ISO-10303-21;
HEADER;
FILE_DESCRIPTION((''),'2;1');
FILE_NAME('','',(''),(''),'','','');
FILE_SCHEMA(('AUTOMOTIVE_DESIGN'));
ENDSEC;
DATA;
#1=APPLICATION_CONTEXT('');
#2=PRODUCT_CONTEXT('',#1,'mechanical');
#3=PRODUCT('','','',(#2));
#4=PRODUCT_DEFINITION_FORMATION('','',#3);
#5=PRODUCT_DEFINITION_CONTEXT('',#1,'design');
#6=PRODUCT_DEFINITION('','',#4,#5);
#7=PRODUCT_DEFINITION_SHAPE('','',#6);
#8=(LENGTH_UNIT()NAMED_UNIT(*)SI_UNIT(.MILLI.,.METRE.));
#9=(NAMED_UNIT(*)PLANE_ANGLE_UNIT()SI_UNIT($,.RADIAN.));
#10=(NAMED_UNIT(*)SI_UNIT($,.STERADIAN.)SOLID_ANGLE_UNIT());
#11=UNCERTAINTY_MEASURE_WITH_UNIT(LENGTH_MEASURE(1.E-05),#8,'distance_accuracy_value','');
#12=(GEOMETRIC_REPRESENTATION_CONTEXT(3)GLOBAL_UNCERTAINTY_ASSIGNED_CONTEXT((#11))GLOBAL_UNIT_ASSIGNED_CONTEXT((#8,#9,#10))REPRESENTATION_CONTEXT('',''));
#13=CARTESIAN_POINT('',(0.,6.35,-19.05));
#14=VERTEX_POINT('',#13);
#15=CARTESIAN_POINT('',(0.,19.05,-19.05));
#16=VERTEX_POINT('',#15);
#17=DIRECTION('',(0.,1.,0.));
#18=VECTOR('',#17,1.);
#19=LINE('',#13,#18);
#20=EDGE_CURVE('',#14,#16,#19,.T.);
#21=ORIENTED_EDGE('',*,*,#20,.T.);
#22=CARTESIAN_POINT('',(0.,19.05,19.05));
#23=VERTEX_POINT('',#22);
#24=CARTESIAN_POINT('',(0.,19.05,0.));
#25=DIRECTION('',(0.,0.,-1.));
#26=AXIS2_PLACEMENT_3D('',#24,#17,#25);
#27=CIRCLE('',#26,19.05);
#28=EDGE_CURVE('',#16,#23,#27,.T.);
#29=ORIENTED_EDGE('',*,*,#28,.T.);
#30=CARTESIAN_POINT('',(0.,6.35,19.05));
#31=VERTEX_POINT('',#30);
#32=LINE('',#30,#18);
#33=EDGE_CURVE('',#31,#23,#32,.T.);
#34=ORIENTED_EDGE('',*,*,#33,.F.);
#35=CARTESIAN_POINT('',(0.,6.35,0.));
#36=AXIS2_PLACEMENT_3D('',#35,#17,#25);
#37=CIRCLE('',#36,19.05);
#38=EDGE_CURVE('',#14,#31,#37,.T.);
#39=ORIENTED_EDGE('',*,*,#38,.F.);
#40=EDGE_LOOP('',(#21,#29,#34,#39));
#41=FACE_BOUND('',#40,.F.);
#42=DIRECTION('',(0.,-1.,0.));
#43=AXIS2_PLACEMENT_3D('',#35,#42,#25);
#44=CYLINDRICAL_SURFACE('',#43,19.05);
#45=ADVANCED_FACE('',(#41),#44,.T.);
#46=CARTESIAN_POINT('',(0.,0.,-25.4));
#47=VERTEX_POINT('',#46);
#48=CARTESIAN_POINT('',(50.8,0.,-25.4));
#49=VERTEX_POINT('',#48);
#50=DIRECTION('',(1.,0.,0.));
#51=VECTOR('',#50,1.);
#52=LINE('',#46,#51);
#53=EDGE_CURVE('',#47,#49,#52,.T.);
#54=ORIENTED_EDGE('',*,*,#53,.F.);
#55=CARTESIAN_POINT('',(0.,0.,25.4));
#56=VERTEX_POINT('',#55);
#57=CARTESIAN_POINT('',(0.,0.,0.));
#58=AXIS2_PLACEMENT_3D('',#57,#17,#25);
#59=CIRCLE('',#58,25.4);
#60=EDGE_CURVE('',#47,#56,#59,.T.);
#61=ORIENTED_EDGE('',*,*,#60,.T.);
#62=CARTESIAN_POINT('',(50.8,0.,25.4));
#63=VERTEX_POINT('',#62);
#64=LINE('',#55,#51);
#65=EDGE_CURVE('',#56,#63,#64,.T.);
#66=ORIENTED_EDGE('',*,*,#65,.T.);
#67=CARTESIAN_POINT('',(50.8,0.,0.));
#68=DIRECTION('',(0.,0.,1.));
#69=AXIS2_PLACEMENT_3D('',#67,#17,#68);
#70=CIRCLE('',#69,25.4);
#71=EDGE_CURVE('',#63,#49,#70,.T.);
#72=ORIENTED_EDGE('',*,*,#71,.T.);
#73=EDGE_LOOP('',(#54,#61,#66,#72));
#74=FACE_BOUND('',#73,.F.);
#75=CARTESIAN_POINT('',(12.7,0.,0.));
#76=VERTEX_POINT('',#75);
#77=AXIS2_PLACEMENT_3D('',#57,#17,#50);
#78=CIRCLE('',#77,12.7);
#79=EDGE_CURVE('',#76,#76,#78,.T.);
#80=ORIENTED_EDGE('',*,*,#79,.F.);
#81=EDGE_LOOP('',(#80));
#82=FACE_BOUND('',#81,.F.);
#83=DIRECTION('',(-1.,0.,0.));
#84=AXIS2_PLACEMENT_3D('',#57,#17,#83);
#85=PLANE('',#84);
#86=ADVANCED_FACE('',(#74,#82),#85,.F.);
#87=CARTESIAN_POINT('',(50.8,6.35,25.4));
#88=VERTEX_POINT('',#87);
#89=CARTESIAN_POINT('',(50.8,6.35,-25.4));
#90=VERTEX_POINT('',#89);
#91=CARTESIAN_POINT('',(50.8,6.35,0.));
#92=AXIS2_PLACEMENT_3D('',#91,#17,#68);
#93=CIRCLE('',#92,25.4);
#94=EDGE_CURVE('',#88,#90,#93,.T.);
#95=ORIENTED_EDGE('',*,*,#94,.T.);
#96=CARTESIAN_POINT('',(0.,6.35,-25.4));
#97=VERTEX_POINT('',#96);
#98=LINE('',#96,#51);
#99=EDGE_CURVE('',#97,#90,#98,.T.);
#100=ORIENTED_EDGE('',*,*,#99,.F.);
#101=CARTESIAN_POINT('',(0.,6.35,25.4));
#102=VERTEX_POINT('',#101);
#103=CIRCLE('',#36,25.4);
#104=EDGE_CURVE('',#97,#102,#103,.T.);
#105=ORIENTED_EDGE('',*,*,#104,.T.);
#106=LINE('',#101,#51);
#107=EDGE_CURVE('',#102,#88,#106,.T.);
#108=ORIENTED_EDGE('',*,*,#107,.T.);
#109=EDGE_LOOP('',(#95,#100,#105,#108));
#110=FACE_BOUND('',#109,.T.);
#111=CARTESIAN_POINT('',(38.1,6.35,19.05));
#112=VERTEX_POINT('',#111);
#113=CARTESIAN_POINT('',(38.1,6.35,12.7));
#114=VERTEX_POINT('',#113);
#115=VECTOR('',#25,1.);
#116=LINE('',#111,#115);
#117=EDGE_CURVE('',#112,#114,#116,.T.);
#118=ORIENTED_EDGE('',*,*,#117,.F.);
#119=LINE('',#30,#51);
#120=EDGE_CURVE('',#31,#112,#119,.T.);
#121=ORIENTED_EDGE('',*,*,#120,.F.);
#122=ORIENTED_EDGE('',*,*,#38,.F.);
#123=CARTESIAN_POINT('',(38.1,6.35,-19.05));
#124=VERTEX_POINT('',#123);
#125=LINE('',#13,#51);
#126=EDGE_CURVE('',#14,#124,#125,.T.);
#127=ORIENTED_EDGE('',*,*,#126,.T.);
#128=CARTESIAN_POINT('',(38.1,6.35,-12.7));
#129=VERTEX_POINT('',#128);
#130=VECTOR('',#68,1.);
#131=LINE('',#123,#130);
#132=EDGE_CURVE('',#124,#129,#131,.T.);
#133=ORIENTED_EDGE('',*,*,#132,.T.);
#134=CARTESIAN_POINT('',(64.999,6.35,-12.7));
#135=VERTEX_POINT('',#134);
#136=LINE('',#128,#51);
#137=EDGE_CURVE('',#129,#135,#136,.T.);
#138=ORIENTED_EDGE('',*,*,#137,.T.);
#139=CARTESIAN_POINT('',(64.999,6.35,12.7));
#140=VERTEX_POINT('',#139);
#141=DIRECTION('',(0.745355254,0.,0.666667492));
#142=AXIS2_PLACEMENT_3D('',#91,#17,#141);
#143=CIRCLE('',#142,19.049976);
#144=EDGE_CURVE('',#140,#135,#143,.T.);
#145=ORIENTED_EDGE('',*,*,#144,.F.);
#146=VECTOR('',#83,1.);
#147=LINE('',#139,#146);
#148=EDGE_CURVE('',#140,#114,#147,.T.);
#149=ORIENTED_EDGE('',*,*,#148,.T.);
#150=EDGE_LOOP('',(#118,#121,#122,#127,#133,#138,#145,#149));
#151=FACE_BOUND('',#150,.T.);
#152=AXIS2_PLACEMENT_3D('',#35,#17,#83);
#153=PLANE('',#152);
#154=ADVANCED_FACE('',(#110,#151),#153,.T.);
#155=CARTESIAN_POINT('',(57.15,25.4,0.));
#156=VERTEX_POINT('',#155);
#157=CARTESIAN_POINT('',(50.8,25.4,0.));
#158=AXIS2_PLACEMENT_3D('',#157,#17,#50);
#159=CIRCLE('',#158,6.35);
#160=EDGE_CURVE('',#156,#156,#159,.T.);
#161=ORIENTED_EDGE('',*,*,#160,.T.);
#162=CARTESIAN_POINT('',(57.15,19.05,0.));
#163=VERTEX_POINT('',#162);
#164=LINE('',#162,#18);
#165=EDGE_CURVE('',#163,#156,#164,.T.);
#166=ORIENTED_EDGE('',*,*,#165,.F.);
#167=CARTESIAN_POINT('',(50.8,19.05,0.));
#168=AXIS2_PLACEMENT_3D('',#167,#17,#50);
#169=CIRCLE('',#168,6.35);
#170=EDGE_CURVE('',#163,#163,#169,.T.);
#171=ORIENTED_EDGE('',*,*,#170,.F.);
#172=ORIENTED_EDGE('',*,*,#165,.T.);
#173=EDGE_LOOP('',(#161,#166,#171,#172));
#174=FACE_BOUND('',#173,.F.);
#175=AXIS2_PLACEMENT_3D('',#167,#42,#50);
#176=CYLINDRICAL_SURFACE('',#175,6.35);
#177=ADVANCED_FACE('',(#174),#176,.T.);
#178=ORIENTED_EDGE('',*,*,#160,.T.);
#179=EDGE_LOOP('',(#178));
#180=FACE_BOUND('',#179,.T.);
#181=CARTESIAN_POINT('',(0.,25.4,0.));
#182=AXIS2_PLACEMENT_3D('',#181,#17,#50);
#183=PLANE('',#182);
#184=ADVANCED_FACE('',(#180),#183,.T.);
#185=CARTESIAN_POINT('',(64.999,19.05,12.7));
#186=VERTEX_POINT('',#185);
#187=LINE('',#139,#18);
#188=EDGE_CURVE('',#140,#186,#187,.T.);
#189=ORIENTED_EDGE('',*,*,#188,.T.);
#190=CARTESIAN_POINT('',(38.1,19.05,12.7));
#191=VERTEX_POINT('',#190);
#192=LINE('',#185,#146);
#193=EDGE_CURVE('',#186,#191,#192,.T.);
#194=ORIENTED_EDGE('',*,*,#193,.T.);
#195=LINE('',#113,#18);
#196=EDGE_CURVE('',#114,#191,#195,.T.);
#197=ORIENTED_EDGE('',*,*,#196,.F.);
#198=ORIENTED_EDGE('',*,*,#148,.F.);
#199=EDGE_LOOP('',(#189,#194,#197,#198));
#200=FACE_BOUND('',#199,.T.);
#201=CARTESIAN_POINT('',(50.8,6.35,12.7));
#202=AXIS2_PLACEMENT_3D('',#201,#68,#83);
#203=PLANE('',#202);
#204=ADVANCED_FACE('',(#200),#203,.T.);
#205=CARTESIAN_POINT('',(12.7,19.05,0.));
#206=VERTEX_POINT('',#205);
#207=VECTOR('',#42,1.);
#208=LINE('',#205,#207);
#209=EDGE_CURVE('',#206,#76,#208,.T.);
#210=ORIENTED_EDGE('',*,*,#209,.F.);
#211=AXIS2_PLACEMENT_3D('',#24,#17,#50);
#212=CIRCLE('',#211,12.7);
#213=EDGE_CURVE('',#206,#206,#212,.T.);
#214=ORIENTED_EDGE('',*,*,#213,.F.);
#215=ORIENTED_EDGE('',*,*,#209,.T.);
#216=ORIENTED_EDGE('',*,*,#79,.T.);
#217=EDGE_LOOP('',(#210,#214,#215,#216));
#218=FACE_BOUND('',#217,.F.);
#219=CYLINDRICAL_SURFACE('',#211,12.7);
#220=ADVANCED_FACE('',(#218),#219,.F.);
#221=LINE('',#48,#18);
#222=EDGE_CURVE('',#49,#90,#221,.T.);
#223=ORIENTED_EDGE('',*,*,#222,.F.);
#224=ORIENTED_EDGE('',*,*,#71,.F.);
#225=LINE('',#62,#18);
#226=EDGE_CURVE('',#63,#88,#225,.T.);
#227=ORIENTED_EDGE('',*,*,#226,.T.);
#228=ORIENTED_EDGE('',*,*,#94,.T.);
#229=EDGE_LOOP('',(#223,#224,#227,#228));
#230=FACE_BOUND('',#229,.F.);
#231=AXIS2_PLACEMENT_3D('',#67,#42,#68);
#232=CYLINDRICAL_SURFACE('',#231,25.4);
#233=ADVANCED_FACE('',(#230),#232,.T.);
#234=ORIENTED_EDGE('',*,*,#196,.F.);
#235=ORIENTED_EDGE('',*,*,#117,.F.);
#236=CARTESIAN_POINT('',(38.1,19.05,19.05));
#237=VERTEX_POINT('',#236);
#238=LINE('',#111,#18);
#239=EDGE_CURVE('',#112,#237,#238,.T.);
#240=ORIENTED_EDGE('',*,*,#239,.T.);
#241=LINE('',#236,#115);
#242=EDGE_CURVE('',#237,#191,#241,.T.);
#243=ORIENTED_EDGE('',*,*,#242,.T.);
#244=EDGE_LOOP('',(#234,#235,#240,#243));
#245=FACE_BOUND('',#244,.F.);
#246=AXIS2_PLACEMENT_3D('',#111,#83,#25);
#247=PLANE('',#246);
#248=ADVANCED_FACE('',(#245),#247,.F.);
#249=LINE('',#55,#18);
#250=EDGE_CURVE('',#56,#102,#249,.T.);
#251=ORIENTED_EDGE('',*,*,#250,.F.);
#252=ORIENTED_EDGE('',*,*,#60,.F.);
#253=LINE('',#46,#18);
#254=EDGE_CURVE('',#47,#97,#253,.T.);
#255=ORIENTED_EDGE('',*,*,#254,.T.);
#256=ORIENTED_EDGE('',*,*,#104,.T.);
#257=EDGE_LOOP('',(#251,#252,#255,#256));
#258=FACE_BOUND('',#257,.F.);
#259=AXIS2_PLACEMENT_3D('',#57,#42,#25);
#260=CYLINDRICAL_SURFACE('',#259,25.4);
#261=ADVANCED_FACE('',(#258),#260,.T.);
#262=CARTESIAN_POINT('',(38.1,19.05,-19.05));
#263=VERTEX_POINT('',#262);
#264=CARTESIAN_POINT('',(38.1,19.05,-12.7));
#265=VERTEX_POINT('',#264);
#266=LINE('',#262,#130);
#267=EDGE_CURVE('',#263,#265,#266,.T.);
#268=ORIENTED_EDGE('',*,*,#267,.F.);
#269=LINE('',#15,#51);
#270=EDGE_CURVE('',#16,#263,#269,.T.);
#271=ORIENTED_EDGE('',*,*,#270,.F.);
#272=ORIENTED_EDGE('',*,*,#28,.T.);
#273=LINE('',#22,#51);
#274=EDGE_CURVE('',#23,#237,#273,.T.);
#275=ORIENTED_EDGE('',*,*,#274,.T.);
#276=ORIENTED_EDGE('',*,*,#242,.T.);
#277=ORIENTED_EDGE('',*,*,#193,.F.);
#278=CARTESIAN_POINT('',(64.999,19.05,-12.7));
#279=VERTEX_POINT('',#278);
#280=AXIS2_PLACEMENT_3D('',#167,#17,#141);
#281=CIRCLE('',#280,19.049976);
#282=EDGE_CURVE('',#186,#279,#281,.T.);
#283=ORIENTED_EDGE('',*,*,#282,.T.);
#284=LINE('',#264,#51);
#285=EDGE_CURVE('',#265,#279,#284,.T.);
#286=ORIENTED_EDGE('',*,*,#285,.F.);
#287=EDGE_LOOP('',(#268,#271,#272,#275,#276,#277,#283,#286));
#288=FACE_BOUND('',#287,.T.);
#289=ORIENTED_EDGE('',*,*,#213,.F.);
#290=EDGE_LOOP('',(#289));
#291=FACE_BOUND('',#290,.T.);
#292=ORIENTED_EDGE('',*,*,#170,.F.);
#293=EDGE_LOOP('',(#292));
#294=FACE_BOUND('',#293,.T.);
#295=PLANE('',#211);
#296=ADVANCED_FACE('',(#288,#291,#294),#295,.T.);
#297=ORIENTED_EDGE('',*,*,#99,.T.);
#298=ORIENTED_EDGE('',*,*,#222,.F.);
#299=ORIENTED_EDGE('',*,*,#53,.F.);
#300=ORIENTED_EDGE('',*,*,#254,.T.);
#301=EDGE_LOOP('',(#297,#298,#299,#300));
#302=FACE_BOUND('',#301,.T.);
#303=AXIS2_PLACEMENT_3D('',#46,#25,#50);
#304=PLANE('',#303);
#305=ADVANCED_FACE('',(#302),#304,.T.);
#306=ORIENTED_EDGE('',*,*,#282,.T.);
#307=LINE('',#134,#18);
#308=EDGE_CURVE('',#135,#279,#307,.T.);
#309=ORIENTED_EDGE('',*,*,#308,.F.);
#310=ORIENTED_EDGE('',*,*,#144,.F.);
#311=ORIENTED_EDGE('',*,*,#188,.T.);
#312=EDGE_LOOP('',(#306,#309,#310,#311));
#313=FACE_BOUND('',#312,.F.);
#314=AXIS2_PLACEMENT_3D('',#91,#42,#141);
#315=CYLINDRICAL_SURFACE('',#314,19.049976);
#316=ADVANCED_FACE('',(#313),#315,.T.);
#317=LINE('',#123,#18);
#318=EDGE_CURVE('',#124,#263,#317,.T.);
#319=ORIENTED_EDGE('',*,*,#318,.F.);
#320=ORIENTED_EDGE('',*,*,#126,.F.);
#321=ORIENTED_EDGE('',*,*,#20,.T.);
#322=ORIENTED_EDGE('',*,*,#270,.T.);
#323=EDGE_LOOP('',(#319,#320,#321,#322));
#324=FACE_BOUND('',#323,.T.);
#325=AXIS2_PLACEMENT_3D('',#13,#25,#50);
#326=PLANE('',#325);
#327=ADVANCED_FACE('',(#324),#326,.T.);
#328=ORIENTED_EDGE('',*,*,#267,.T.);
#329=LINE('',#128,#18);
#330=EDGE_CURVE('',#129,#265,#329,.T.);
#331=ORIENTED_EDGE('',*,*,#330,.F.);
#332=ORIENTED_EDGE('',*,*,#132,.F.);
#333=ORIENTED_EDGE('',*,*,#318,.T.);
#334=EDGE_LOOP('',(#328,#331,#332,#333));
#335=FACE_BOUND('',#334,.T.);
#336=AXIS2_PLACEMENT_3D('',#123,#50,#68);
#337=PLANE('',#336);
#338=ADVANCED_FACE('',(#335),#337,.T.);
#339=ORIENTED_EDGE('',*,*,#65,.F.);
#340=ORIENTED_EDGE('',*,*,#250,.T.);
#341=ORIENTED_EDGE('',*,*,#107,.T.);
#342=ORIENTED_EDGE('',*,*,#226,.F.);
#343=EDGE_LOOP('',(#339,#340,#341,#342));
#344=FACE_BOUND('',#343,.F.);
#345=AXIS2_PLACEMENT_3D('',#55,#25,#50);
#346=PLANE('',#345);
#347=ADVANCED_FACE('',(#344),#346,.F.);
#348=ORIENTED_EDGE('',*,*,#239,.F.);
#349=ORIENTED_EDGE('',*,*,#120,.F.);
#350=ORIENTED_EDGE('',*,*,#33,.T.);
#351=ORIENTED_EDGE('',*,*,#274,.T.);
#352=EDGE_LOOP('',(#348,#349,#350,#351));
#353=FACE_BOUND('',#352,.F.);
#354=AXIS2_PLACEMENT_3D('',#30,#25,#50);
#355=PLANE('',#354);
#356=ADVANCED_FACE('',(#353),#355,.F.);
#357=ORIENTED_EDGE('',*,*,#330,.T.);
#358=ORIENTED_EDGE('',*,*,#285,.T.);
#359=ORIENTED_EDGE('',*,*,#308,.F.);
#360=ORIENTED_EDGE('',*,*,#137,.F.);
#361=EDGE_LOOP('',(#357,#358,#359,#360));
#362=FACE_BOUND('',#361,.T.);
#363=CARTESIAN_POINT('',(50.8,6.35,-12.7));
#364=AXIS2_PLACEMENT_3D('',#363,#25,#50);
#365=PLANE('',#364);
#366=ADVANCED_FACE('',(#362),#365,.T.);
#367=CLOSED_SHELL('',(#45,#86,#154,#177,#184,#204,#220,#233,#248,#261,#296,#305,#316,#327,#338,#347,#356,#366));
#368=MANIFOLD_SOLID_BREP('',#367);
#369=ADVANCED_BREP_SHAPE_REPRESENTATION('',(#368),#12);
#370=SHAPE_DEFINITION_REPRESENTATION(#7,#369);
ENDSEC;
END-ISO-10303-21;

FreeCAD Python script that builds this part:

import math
import FreeCAD as App
import Part
import Sketcher
from FreeCAD import Vector
Q = App.Units.Quantity

doc = App.newDocument("Part")
params = doc.addObject("Spreadsheet::Sheet", "Params")
for row, (alias, value) in enumerate([
    ("sketch1_radius", "1 in"),
    ("sketch1_width", "2 in"),
    ("pad1_length", "0.25 in"),
    ("sketch2_radius", "0.75 in"),
    ("sketch2_width", "1.5 in"),
    ("pad2_length", "0.5 in"),
    ("sketch3_diameter", "1 in"),
    ("pocket1_length", "1 in"),
    ("sketch4_diameter", "0.5 in"),
    ("pad3_length", "0.25 in"),
], start=1):
    params.set(f"A{row}", alias)
    params.set(f"B{row}", "=" + value)
    params.setAlias(f"B{row}", alias)

body = doc.addObject("PartDesign::Body", "Body")

sketch1 = body.newObject("Sketcher::SketchObject", "Sketch")
sketch1.AttachmentSupport = (doc.getObject("XZ_Plane"), [""])
sketch1.MapMode = "FlatFace"
sketch1.addGeometry(Part.LineSegment(Vector(51, -25, 0), Vector(0, -25, 0)), False)
sketch1.addGeometry(Part.ArcOfCircle(Part.Circle(Vector(0, 0, 0), Vector(0, 0, 1), 25), math.radians(90), math.radians(270)), False)
sketch1.addGeometry(Part.LineSegment(Vector(0, 25, 0), Vector(51, 25, 0)), False)
sketch1.addGeometry(Part.ArcOfCircle(Part.Circle(Vector(51, 0, 0), Vector(0, 0, 1), 25), math.radians(-90), math.radians(90)), False)
sketch1.addConstraint(Sketcher.Constraint("Tangent", 0, 2, 1, 2))
sketch1.addConstraint(Sketcher.Constraint("Tangent", 1, 1, 2, 1))
sketch1.addConstraint(Sketcher.Constraint("Tangent", 2, 2, 3, 2))
sketch1.addConstraint(Sketcher.Constraint("Tangent", 3, 1, 0, 1))
sketch1.addConstraint(Sketcher.Constraint("Horizontal", 0))
sketch1.addConstraint(Sketcher.Constraint("Horizontal", 2))
sketch1.addConstraint(Sketcher.Constraint("Coincident", 1, 3, -1, 1))
sketch1.addConstraint(Sketcher.Constraint("Radius", 1, Q("1 in")))
sketch1.addConstraint(Sketcher.Constraint("DistanceX", 0, 2, 0, 1, Q("2 in")))
sketch1.setExpression("Constraints[7]", "Params.sketch1_radius")
sketch1.setExpression("Constraints[8]", "Params.sketch1_width")
pad1 = body.newObject("PartDesign::Pad", "Pad")
pad1.Profile = sketch1
pad1.setExpression("Length", "Params.pad1_length")
pad1.Reversed = True

sketch2 = body.newObject("Sketcher::SketchObject", "Sketch001")
sketch2.AttachmentSupport = (doc.getObject("XZ_Plane"), [""])
sketch2.MapMode = "FlatFace"
sketch2.AttachmentOffset = App.Placement(Vector(0, 0, -0.25 * 25.4), App.Rotation())
sketch2.addGeometry(Part.LineSegment(Vector(38, -19, 0), Vector(0, -19, 0)), False)
sketch2.addGeometry(Part.ArcOfCircle(Part.Circle(Vector(0, 0, 0), Vector(0, 0, 1), 19), math.radians(90), math.radians(270)), False)
sketch2.addGeometry(Part.LineSegment(Vector(0, 19, 0), Vector(38, 19, 0)), False)
sketch2.addGeometry(Part.LineSegment(Vector(38, 19, 0), Vector(38, 13, 0)), False)
sketch2.addGeometry(Part.LineSegment(Vector(38, 13, 0), Vector(65, 13, 0)), False)
sketch2.addGeometry(Part.ArcOfCircle(Part.Circle(Vector(51, 0, 0), Vector(0, 0, 1), 19), math.radians(-42), math.radians(42)), False)
sketch2.addGeometry(Part.LineSegment(Vector(65, -13, 0), Vector(38, -13, 0)), False)
sketch2.addGeometry(Part.LineSegment(Vector(38, -13, 0), Vector(38, -19, 0)), False)
sketch2.addConstraint(Sketcher.Constraint("Tangent", 0, 2, 1, 2))
sketch2.addConstraint(Sketcher.Constraint("Tangent", 1, 1, 2, 1))
sketch2.addConstraint(Sketcher.Constraint("Coincident", 2, 2, 3, 1))
sketch2.addConstraint(Sketcher.Constraint("Coincident", 3, 2, 4, 1))
sketch2.addConstraint(Sketcher.Constraint("Coincident", 4, 2, 5, 2))
sketch2.addConstraint(Sketcher.Constraint("Coincident", 5, 1, 6, 1))
sketch2.addConstraint(Sketcher.Constraint("Coincident", 6, 2, 7, 1))
sketch2.addConstraint(Sketcher.Constraint("Coincident", 7, 2, 0, 1))
sketch2.addConstraint(Sketcher.Constraint("Horizontal", 0))
sketch2.addConstraint(Sketcher.Constraint("Horizontal", 2))
sketch2.addConstraint(Sketcher.Constraint("Vertical", 3))
sketch2.addConstraint(Sketcher.Constraint("Horizontal", 4))
sketch2.addConstraint(Sketcher.Constraint("Horizontal", 6))
sketch2.addConstraint(Sketcher.Constraint("Vertical", 7))
sketch2.addConstraint(Sketcher.Constraint("Coincident", 1, 3, -1, 1))
sketch2.addConstraint(Sketcher.Constraint("Equal", 1, 5))
sketch2.addConstraint(Sketcher.Constraint("Symmetric", 4, 2, 5, 1, -1))
sketch2.addConstraint(Sketcher.Constraint("Vertical", 3, 2, 6, 2))
sketch2.addConstraint(Sketcher.Constraint("Radius", 1, Q("0.75 in")))
sketch2.addConstraint(Sketcher.Constraint("DistanceX", 0, 2, 0, 1, Q("1.5 in")))
sketch2.addConstraint(Sketcher.Constraint("DistanceX", -1, 1, 5, 3, Q("2 in")))
sketch2.addConstraint(Sketcher.Constraint("DistanceY", 5, 1, 4, 2, Q("1 in")))
sketch2.setExpression("Constraints[18]", "Params.sketch2_radius")
sketch2.setExpression("Constraints[19]", "Params.sketch2_width")
pad2 = body.newObject("PartDesign::Pad", "Pad001")
pad2.Profile = sketch2
pad2.setExpression("Length", "Params.pad2_length")
pad2.Reversed = True

sketch3 = body.newObject("Sketcher::SketchObject", "Sketch002")
sketch3.AttachmentSupport = (doc.getObject("XZ_Plane"), [""])
sketch3.MapMode = "FlatFace"
sketch3.AttachmentOffset = App.Placement(Vector(0, 0, -0.75 * 25.4), App.Rotation())
sketch3.addGeometry(Part.Circle(Vector(0, 0, 0), Vector(0, 0, 1), 13), False)
sketch3.addConstraint(Sketcher.Constraint("Coincident", 0, 3, -1, 1))
sketch3.addConstraint(Sketcher.Constraint("Diameter", 0, Q("1 in")))
sketch3.setExpression("Constraints[1]", "Params.sketch3_diameter")
pocket1 = body.newObject("PartDesign::Pocket", "Pocket")
pocket1.Profile = sketch3
pocket1.setExpression("Length", "Params.pocket1_length")
pocket1.Reversed = True

sketch4 = body.newObject("Sketcher::SketchObject", "Sketch003")
sketch4.AttachmentSupport = (doc.getObject("XZ_Plane"), [""])
sketch4.MapMode = "FlatFace"
sketch4.AttachmentOffset = App.Placement(Vector(0, 0, -0.75 * 25.4), App.Rotation())
sketch4.addGeometry(Part.Circle(Vector(51, 0, 0), Vector(0, 0, 1), 6), False)
sketch4.addConstraint(Sketcher.Constraint("PointOnObject", 0, 3, -1))
sketch4.addConstraint(Sketcher.Constraint("Diameter", 0, Q("0.5 in")))
sketch4.addConstraint(Sketcher.Constraint("DistanceX", -1, 1, 0, 3, Q("2 in")))
sketch4.setExpression("Constraints[1]", "Params.sketch4_diameter")
pad3 = body.newObject("PartDesign::Pad", "Pad002")
pad3.Profile = sketch4
pad3.setExpression("Length", "Params.pad3_length")
pad3.Reversed = True

doc.recompute()
